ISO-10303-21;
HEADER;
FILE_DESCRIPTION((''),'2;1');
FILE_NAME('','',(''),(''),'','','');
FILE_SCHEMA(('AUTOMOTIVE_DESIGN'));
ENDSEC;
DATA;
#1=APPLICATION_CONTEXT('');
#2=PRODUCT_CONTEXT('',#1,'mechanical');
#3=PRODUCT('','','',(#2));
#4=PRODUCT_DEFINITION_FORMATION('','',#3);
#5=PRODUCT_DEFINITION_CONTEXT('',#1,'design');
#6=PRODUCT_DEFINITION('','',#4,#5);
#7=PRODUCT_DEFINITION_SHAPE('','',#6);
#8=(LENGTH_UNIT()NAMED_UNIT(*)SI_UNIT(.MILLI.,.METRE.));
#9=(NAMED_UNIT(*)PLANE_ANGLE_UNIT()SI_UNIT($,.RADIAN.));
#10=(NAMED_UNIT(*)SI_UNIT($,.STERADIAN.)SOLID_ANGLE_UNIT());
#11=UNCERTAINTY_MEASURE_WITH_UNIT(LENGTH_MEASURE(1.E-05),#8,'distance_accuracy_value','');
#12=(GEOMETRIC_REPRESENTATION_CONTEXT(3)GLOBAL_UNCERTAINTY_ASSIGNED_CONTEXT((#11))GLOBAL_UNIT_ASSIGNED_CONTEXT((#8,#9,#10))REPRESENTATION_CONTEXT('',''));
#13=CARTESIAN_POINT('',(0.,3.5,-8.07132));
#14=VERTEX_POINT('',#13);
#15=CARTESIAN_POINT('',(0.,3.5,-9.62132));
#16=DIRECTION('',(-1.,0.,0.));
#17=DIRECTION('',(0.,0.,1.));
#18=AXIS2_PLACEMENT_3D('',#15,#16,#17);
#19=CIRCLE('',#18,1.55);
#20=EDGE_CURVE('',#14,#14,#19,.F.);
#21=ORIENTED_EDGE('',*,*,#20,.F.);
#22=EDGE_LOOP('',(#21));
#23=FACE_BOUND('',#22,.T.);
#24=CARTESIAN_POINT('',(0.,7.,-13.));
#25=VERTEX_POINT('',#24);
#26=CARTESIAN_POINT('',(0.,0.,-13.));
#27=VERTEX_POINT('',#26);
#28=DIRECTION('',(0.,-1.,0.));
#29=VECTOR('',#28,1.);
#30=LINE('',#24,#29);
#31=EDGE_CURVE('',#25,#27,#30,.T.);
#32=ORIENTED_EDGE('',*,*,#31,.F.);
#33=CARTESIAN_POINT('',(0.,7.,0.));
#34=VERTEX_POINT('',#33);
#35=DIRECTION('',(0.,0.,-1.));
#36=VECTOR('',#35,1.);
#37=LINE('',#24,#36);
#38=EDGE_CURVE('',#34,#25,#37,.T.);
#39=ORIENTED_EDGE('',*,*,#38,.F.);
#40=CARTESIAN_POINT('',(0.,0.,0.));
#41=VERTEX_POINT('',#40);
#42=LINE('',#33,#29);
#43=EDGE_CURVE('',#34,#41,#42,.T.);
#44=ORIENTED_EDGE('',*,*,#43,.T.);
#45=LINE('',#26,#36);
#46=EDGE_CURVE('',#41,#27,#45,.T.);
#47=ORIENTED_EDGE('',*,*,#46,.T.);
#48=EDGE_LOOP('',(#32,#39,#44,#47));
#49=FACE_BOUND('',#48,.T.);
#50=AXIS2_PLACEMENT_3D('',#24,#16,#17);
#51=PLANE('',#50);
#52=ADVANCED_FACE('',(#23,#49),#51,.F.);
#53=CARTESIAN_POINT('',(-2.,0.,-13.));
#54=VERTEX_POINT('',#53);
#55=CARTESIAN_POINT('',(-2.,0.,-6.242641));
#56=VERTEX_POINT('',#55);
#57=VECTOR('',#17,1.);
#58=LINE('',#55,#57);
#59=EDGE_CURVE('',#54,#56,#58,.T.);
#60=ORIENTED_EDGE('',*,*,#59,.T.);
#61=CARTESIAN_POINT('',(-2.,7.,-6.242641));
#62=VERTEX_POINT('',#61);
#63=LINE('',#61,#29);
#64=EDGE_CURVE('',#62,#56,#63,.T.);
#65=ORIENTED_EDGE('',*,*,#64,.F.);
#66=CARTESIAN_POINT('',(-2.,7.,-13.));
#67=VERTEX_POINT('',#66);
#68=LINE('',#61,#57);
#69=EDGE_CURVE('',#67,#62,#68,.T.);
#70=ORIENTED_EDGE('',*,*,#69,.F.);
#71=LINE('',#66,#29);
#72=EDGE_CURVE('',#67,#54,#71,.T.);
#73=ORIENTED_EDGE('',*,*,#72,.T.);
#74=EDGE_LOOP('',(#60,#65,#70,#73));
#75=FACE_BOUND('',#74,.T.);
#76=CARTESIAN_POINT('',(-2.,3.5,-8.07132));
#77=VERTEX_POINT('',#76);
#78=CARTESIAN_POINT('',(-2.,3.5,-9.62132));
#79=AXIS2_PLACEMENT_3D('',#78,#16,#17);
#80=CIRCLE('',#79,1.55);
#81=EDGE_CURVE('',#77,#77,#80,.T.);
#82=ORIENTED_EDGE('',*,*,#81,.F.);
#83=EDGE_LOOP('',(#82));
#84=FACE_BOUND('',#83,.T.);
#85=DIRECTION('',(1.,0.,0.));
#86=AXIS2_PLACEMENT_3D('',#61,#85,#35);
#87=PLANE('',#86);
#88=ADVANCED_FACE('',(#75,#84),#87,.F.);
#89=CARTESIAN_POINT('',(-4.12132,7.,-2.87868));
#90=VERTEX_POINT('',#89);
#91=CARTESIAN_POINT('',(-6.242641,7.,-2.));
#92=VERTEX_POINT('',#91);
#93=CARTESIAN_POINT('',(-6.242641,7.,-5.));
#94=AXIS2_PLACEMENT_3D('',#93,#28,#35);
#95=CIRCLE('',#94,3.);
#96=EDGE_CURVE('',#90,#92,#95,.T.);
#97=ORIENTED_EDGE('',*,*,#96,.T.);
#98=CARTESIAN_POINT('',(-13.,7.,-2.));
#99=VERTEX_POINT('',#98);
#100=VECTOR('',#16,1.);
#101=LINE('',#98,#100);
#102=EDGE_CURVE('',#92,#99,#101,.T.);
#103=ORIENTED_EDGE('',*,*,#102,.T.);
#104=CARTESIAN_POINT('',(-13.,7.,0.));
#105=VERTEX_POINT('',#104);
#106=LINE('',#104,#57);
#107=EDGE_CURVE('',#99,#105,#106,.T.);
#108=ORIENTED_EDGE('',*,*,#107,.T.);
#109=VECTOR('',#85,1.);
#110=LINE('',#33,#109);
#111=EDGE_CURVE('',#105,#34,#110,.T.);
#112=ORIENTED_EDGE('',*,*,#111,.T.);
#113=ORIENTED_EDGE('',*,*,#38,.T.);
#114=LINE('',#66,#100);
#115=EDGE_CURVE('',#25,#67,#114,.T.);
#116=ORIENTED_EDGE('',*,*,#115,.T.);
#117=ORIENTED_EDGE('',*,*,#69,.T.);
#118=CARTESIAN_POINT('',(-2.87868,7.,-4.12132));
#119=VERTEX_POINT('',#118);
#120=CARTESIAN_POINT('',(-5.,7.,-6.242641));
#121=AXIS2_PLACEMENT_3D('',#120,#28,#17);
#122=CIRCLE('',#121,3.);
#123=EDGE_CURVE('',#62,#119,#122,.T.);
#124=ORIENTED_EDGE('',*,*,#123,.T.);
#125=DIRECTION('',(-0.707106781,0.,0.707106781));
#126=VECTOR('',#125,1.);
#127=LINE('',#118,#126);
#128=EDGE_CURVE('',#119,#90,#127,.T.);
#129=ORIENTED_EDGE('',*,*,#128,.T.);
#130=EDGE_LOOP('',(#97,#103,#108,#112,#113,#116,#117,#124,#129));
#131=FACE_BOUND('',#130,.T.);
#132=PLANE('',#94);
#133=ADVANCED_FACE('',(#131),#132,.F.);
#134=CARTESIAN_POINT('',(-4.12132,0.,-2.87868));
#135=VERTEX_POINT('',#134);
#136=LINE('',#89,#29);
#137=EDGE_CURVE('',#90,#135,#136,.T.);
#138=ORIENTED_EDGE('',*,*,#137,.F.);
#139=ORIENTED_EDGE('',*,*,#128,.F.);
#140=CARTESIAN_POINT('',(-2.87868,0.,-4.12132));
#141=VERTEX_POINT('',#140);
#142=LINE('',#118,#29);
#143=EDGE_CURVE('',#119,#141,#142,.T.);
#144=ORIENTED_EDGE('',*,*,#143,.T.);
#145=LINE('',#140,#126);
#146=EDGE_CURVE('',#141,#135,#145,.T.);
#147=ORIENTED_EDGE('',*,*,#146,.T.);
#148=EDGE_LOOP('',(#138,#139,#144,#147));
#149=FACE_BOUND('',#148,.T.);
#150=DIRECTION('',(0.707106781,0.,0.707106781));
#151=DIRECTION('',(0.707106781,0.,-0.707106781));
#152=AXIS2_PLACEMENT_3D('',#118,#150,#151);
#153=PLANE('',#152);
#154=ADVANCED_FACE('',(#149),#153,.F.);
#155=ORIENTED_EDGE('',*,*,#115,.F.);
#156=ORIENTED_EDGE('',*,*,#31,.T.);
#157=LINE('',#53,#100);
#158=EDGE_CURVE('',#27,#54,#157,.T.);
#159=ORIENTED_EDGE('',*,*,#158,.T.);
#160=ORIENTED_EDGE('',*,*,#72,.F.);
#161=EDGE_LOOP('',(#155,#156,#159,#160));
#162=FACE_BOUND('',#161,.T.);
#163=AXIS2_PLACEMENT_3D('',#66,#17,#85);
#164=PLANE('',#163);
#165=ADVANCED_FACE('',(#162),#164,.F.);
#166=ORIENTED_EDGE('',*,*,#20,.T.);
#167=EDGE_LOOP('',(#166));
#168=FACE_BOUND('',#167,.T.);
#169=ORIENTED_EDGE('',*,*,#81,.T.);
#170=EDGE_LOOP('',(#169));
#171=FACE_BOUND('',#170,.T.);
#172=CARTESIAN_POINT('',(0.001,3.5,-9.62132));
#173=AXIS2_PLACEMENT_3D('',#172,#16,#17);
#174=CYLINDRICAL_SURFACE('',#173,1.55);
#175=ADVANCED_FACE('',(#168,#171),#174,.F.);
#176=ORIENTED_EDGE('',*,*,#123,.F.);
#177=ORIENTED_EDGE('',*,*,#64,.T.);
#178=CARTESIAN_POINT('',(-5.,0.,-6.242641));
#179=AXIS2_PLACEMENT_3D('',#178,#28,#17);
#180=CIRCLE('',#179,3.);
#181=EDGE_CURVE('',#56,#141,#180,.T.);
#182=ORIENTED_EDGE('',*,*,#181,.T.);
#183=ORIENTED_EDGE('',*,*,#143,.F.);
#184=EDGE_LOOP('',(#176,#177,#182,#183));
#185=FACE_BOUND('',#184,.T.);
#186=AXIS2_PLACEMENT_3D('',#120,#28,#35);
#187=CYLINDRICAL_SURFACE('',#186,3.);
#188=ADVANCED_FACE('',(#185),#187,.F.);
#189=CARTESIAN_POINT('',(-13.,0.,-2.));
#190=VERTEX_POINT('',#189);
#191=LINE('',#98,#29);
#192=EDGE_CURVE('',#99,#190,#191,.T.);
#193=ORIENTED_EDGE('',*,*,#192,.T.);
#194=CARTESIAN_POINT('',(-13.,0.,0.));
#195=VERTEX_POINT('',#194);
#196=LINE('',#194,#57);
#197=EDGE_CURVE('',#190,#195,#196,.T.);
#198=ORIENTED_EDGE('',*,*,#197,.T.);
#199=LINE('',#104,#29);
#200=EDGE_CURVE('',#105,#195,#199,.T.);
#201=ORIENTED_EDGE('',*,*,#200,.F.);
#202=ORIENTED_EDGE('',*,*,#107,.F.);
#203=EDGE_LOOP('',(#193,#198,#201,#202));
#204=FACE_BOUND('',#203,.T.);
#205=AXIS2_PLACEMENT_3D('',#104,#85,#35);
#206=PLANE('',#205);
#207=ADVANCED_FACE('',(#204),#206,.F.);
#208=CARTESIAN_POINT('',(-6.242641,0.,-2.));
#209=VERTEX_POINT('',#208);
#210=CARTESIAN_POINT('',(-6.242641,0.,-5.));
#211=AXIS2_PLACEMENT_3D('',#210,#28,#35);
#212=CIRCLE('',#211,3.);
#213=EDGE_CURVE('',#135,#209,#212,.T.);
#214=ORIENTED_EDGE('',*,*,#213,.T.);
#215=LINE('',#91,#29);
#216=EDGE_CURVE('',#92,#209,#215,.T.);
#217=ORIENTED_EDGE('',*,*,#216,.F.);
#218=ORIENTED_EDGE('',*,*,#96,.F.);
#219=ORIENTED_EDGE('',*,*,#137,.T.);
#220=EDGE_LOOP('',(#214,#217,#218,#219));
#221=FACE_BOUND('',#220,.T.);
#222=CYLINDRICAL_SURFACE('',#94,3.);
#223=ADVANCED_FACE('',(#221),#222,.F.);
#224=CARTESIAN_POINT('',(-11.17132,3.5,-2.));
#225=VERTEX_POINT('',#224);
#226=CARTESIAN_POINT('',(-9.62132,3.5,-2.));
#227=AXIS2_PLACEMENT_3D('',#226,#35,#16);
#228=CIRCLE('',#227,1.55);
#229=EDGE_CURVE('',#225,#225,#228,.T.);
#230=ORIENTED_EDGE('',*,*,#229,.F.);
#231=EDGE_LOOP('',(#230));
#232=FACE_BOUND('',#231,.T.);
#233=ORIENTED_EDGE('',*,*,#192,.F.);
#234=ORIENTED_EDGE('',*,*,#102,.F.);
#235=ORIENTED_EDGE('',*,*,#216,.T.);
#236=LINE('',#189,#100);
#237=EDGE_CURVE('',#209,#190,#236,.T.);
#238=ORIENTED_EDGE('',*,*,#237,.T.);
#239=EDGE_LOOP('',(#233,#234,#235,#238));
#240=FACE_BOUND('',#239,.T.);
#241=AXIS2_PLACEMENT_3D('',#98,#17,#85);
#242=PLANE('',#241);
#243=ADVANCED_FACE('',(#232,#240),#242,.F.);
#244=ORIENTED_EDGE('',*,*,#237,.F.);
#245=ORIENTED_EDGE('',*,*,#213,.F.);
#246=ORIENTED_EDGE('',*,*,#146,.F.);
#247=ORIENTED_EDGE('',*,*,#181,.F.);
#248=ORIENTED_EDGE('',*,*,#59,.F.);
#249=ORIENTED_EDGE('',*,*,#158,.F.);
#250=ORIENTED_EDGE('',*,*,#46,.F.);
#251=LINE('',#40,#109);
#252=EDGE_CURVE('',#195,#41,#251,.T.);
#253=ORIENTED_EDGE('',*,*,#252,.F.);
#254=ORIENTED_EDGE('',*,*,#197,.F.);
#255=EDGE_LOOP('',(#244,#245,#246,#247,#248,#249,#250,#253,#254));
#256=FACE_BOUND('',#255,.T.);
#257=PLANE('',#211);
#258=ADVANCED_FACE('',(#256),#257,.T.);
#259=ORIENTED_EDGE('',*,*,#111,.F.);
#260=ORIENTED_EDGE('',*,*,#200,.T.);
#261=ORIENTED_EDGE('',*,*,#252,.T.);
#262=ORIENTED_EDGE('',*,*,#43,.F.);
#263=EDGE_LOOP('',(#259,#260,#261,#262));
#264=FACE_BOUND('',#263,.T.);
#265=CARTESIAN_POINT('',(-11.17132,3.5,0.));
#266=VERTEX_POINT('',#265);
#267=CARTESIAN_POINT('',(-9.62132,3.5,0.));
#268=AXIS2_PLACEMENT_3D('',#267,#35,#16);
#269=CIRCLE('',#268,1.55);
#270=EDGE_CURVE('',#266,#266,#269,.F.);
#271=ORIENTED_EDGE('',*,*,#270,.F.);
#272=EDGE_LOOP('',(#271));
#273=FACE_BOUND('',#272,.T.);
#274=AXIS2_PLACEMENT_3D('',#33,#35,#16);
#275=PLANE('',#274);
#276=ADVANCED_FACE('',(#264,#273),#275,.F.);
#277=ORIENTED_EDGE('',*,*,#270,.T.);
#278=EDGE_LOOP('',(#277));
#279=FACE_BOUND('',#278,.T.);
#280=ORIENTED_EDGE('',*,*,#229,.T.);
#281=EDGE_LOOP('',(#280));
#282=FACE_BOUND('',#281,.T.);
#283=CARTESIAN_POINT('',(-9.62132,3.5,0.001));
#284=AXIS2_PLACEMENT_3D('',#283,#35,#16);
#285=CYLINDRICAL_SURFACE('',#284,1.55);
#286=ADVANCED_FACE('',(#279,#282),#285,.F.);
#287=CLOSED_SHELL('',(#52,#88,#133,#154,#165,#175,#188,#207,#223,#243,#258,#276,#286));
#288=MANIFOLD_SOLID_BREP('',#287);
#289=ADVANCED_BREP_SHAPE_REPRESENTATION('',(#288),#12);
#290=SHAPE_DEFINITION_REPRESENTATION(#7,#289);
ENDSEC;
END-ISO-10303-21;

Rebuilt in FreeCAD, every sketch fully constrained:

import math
import FreeCAD as App
import Part
import Sketcher

V = App.Vector

doc = App.newDocument("Part")
body = doc.addObject("PartDesign::Body", "Body")

sketch1 = body.newObject("Sketcher::SketchObject", "Sketch")
sketch1.AttachmentSupport = (doc.getObject("XZ_Plane"), [""])
sketch1.MapMode = "FlatFace"
sketch1.addGeometry([
    Part.LineSegment(V(-13, 0, 0), V(0, 0, 0)),
    Part.LineSegment(V(0, 0, 0), V(0, -13, 0)),
    Part.LineSegment(V(0, -13, 0), V(-2, -13, 0)),
    Part.LineSegment(V(-2, -13, 0), V(-2, -6.242641, 0)),
    Part.ArcOfCircle(Part.Circle(V(-5, -6.242641, 0), V(0, 0, 1), 3), math.radians(0), math.radians(45)),
    Part.LineSegment(V(-2.87868, -4.12132, 0), V(-4.12132, -2.87868, 0)),
    Part.ArcOfCircle(Part.Circle(V(-6.242641, -5, 0), V(0, 0, 1), 3), math.radians(45), math.radians(90)),
    Part.LineSegment(V(-6.242641, -2, 0), V(-13, -2, 0)),
    Part.LineSegment(V(-13, -2, 0), V(-13, 0, 0)),
], False)
sketch1.addConstraint([
    Sketcher.Constraint("Coincident", 0, 2, 1, 1),
    Sketcher.Constraint("Coincident", 1, 2, 2, 1),
    Sketcher.Constraint("Coincident", 2, 2, 3, 1),
    Sketcher.Constraint("Tangent", 3, 2, 4, 1),
    Sketcher.Constraint("Tangent", 4, 2, 5, 1),
    Sketcher.Constraint("Tangent", 5, 2, 6, 1),
    Sketcher.Constraint("Tangent", 6, 2, 7, 1),
    Sketcher.Constraint("Coincident", 7, 2, 8, 1),
    Sketcher.Constraint("Coincident", 8, 2, 0, 1),
    Sketcher.Constraint("Horizontal", 0),
    Sketcher.Constraint("Vertical", 1),
    Sketcher.Constraint("Horizontal", 2),
    Sketcher.Constraint("Vertical", 3),
    Sketcher.Constraint("Horizontal", 7),
    Sketcher.Constraint("Vertical", 8),
    Sketcher.Constraint("Coincident", 0, 2, -1, 1),
    Sketcher.Constraint("Equal", 4, 6),
    Sketcher.Constraint("Equal", 0, 1),
    Sketcher.Constraint("Equal", 7, 3),
    Sketcher.Constraint("Equal", 2, 8),
    Sketcher.Constraint("Radius", 4, 3.0),
    Sketcher.Constraint("DistanceX", 0, 1, 0, 2, 13.0),
    Sketcher.Constraint("DistanceX", 2, 2, 2, 1, 2.0),
    Sketcher.Constraint("DistanceX", 7, 2, 7, 1, 6.757359),
])
pad1 = body.newObject("PartDesign::Pad", "Pad")
pad1.Profile = sketch1
pad1.Length = 7
pad1.Reversed = True

sketch2 = body.newObject("Sketcher::SketchObject", "Sketch001")
sketch2.AttachmentSupport = (doc.getObject("XY_Plane"), [""])
sketch2.MapMode = "FlatFace"
sketch2.AttachmentOffset = App.Placement(V(0, 0, -2), App.Rotation())
sketch2.addGeometry(Part.Circle(V(-9.62132, 3.5, 0), V(0, 0, 1), 1.55), False)
sketch2.addConstraint([
    Sketcher.Constraint("Diameter", 0, 3.1),
    Sketcher.Constraint("DistanceY", -1, 1, 0, 3, 3.5),
    Sketcher.Constraint("DistanceX", 0, 3, -1, 1, 9.62132),
])
pocket1 = body.newObject("PartDesign::Pocket", "Pocket")
pocket1.Profile = sketch2
pocket1.Type = "UpToFirst"
pocket1.Reversed = True

sketch3 = body.newObject("Sketcher::SketchObject", "Sketch002")
sketch3.AttachmentSupport = (doc.getObject("YZ_Plane"), [""])
sketch3.MapMode = "FlatFace"
sketch3.AttachmentOffset = App.Placement(V(0, 0, -2), App.Rotation())
sketch3.addGeometry(Part.Circle(V(3.5, -9.62132, 0), V(0, 0, 1), 1.55), False)
sketch3.addConstraint([
    Sketcher.Constraint("Diameter", 0, 3.1),
    Sketcher.Constraint("DistanceX", -1, 1, 0, 3, 3.5),
    Sketcher.Constraint("DistanceY", 0, 3, -1, 1, 9.62132),
])
pocket2 = body.newObject("PartDesign::Pocket", "Pocket001")
pocket2.Profile = sketch3
pocket2.Type = "UpToFirst"
pocket2.Reversed = True

doc.recompute()
